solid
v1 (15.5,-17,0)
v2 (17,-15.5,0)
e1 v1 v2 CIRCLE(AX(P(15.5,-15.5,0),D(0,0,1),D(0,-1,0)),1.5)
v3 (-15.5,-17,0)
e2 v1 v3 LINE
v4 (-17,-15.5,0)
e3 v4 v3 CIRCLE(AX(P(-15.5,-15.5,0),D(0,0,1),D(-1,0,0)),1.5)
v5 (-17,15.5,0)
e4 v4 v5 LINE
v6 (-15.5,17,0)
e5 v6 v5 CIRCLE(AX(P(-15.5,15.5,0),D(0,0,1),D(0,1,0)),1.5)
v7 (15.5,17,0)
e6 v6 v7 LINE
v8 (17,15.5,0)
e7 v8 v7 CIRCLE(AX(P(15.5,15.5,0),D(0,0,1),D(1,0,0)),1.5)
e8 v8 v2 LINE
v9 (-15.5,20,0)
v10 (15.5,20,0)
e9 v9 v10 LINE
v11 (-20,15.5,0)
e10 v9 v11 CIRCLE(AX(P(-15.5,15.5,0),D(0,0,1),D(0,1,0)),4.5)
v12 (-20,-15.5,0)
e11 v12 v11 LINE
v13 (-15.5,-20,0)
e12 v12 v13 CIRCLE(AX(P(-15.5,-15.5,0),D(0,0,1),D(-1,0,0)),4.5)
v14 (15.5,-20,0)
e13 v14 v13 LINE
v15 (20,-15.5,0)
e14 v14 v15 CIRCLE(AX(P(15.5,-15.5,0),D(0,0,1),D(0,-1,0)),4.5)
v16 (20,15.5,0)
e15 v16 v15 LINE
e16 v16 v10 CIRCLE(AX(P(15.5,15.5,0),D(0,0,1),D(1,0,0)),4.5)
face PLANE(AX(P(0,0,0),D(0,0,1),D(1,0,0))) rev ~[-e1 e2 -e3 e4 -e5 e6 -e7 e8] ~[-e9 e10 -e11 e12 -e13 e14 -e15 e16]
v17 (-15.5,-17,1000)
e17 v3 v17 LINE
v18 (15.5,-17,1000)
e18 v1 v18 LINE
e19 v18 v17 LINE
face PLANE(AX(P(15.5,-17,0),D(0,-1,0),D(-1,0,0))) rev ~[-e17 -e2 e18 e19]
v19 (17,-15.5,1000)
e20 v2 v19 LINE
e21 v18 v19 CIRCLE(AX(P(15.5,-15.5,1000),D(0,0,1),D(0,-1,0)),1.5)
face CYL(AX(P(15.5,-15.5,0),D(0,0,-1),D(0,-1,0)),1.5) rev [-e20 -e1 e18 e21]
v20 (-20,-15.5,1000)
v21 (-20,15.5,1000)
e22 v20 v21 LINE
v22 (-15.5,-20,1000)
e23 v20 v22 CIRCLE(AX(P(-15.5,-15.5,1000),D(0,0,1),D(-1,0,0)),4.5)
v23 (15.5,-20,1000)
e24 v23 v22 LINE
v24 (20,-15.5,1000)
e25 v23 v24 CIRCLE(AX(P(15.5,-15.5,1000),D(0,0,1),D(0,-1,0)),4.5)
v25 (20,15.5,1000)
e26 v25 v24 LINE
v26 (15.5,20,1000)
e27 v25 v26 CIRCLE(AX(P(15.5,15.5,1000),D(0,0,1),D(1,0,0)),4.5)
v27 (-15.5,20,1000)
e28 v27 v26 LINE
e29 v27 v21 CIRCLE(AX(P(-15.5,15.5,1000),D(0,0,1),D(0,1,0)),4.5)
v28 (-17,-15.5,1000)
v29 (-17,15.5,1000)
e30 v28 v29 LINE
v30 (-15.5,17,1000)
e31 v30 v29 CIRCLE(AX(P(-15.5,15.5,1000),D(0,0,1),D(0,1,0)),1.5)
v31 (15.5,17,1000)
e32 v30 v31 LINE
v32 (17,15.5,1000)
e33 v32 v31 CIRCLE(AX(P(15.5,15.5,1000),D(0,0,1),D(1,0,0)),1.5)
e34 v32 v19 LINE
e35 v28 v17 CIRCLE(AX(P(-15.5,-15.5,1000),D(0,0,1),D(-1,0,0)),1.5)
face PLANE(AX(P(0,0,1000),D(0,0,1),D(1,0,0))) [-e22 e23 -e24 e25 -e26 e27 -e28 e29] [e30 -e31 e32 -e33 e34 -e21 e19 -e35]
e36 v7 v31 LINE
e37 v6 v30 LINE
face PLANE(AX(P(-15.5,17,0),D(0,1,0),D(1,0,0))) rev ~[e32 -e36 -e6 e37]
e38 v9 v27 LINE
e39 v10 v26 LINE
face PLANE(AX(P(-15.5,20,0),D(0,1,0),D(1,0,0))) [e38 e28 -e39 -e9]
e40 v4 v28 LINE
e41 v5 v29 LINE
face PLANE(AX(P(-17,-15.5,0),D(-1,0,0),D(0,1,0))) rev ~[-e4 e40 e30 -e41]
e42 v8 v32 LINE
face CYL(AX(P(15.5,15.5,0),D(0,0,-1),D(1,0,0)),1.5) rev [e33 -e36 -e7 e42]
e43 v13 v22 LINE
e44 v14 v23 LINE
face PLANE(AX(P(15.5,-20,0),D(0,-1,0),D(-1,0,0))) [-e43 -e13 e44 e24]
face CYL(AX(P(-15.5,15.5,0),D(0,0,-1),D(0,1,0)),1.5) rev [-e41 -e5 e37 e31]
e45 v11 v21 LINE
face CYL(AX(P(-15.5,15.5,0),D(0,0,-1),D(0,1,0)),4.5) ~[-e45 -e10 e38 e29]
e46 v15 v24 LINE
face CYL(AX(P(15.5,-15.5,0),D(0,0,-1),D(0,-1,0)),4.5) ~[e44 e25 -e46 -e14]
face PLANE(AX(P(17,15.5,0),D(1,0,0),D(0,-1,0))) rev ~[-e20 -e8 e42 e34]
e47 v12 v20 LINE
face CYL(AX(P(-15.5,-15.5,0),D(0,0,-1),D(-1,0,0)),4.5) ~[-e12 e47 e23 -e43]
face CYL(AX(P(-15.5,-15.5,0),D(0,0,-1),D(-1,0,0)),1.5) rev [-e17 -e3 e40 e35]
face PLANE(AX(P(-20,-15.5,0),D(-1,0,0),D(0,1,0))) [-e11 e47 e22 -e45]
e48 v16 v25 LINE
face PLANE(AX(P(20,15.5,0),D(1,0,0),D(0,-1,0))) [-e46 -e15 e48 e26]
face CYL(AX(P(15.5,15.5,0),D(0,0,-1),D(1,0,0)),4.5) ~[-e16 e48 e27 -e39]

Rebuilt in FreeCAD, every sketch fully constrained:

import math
import FreeCAD as App
import Part
import Sketcher

V = App.Vector
Q = App.Units.Quantity

doc = App.newDocument("Part")
params = doc.addObject("Spreadsheet::Sheet", "Params")
for row, (alias, value) in enumerate([
    ("sketch1_radius", "4.5 mm"),
    ("sketch1_radius2", "1.5 mm"),
    ("pad1_length", "1000 mm"),
], start=1):
    params.set(f"A{row}", alias)
    params.set(f"B{row}", "=" + value)
    params.setAlias(f"B{row}", alias)

body = doc.addObject("PartDesign::Body", "Body")

sketch1 = body.newObject("Sketcher::SketchObject", "Sketch")
sketch1.AttachmentSupport = (doc.getObject("XY_Plane"), [""])
sketch1.MapMode = "FlatFace"
sketch1.addGeometry(Part.LineSegment(V(-20, 15.5, 0), V(-20, -15.5, 0)), False)
sketch1.addGeometry(Part.ArcOfCircle(Part.Circle(V(-15.5, -15.5, 0), V(0, 0, 1), 4.5), math.radians(180), math.radians(270)), False)
sketch1.addGeometry(Part.LineSegment(V(-15.5, -20, 0), V(15.5, -20, 0)), False)
sketch1.addGeometry(Part.ArcOfCircle(Part.Circle(V(15.5, -15.5, 0), V(0, 0, 1), 4.5), math.radians(-90), math.radians(0)), False)
sketch1.addGeometry(Part.LineSegment(V(20, -15.5, 0), V(20, 15.5, 0)), False)
sketch1.addGeometry(Part.ArcOfCircle(Part.Circle(V(15.5, 15.5, 0), V(0, 0, 1), 4.5), math.radians(0), math.radians(90)), False)
sketch1.addGeometry(Part.LineSegment(V(15.5, 20, 0), V(-15.5, 20, 0)), False)
sketch1.addGeometry(Part.ArcOfCircle(Part.Circle(V(-15.5, 15.5, 0), V(0, 0, 1), 4.5), math.radians(90), math.radians(180)), False)
sketch1.addGeometry(Part.ArcOfCircle(Part.Circle(V(-15.5, 15.5, 0), V(0, 0, 1), 1.5), math.radians(90), math.radians(180)), False)
sketch1.addGeometry(Part.LineSegment(V(-15.5, 17, 0), V(15.5, 17, 0)), False)
sketch1.addGeometry(Part.ArcOfCircle(Part.Circle(V(15.5, 15.5, 0), V(0, 0, 1), 1.5), math.radians(0), math.radians(90)), False)
sketch1.addGeometry(Part.LineSegment(V(17, 15.5, 0), V(17, -15.5, 0)), False)
sketch1.addGeometry(Part.ArcOfCircle(Part.Circle(V(15.5, -15.5, 0), V(0, 0, 1), 1.5), math.radians(-90), math.radians(0)), False)
sketch1.addGeometry(Part.LineSegment(V(15.5, -17, 0), V(-15.5, -17, 0)), False)
sketch1.addGeometry(Part.ArcOfCircle(Part.Circle(V(-15.5, -15.5, 0), V(0, 0, 1), 1.5), math.radians(180), math.radians(270)), False)
sketch1.addGeometry(Part.LineSegment(V(-17, -15.5, 0), V(-17, 15.5, 0)), False)
sketch1.addConstraint(Sketcher.Constraint("Tangent", 0, 2, 1, 1))
sketch1.addConstraint(Sketcher.Constraint("Tangent", 1, 2, 2, 1))
sketch1.addConstraint(Sketcher.Constraint("Tangent", 2, 2, 3, 1))
sketch1.addConstraint(Sketcher.Constraint("Tangent", 3, 2, 4, 1))
sketch1.addConstraint(Sketcher.Constraint("Tangent", 4, 2, 5, 1))
sketch1.addConstraint(Sketcher.Constraint("Tangent", 5, 2, 6, 1))
sketch1.addConstraint(Sketcher.Constraint("Tangent", 6, 2, 7, 1))
sketch1.addConstraint(Sketcher.Constraint("Tangent", 7, 2, 0, 1))
sketch1.addConstraint(Sketcher.Constraint("Tangent", 8, 1, 9, 1))
sketch1.addConstraint(Sketcher.Constraint("Tangent", 9, 2, 10, 2))
sketch1.addConstraint(Sketcher.Constraint("Tangent", 10, 1, 11, 1))
sketch1.addConstraint(Sketcher.Constraint("Tangent", 11, 2, 12, 2))
sketch1.addConstraint(Sketcher.Constraint("Tangent", 12, 1, 13, 1))
sketch1.addConstraint(Sketcher.Constraint("Tangent", 13, 2, 14, 2))
sketch1.addConstraint(Sketcher.Constraint("Tangent", 14, 1, 15, 1))
sketch1.addConstraint(Sketcher.Constraint("Tangent", 15, 2, 8, 2))
sketch1.addConstraint(Sketcher.Constraint("Vertical", 0))
sketch1.addConstraint(Sketcher.Constraint("Horizontal", 2))
sketch1.addConstraint(Sketcher.Constraint("Vertical", 4))
sketch1.addConstraint(Sketcher.Constraint("Horizontal", 6))
sketch1.addConstraint(Sketcher.Constraint("Horizontal", 9))
sketch1.addConstraint(Sketcher.Constraint("Vertical", 11))
sketch1.addConstraint(Sketcher.Constraint("Horizontal", 13))
sketch1.addConstraint(Sketcher.Constraint("Vertical", 15))
sketch1.addConstraint(Sketcher.Constraint("Coincident", 8, 3, 7, 3))
sketch1.addConstraint(Sketcher.Constraint("Coincident", 10, 3, 5, 3))
sketch1.addConstraint(Sketcher.Constraint("Coincident", 12, 3, 3, 3))
sketch1.addConstraint(Sketcher.Constraint("Equal", 1, 3))
sketch1.addConstraint(Sketcher.Constraint("Equal", 3, 5))
sketch1.addConstraint(Sketcher.Constraint("Equal", 5, 7))
sketch1.addConstraint(Sketcher.Constraint("Equal", 12, 14))
sketch1.addConstraint(Sketcher.Constraint("Symmetric", 1, 3, 5, 3, -1, 1))
sketch1.addConstraint(Sketcher.Constraint("Equal", 13, 0))
sketch1.addConstraint(Sketcher.Constraint("Radius", 1, Q("4.5 mm")))
sketch1.addConstraint(Sketcher.Constraint("Radius", 8, Q("1.5 mm")))
sketch1.addConstraint(Sketcher.Constraint("DistanceX", 0, 2, -1, 1, Q("20 mm")))
sketch1.setExpression("Constraints[33]", "Params.sketch1_radius")
sketch1.setExpression("Constraints[34]", "Params.sketch1_radius2")
pad1 = body.newObject("PartDesign::Pad", "Pad")
pad1.Profile = sketch1
pad1.setExpression("Length", "Params.pad1_length")

doc.recompute()
